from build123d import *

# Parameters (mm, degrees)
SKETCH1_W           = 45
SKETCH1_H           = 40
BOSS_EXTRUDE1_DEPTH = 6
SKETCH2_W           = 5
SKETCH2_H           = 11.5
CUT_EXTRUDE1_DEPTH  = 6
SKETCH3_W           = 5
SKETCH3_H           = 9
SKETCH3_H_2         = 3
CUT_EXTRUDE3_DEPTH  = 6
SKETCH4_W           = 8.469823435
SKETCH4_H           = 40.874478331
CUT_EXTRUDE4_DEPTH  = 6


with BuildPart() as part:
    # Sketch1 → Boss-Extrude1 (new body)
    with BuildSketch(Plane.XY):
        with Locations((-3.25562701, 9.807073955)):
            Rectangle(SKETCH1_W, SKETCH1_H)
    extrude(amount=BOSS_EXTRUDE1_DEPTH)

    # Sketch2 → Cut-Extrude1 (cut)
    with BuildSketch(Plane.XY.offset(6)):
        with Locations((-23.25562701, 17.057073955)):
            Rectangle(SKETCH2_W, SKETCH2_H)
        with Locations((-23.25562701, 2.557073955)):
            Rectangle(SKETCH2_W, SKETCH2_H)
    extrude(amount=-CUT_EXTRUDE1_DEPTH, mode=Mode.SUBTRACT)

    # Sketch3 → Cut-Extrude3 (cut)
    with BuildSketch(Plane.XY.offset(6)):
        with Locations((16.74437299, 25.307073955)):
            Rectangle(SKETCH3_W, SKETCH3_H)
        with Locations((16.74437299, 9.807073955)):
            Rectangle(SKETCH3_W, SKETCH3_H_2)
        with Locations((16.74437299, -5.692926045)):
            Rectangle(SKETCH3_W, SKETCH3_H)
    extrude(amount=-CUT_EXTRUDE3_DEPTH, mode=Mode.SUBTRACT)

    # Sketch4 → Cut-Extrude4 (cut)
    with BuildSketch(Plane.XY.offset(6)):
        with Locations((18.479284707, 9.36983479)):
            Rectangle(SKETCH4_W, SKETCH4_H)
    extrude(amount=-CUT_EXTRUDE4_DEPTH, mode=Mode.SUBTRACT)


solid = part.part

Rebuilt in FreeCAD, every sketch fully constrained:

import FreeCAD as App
import Part
import Sketcher


def add_polygon(sketch, points):
    """Adds a closed chain of lines whose ends are joined by coincident constraints."""
    first, n = sketch.GeometryCount, len(points)
    for a, b in zip(points, points[1:] + points[:1]):
        sketch.addGeometry(Part.LineSegment(App.Vector(*a, 0), App.Vector(*b, 0)), False)
    for i in range(n):
        sketch.addConstraint(Sketcher.Constraint("Coincident", first + i, 2, first + (i + 1) % n, 1))

doc = App.newDocument("Part")
body = doc.addObject("PartDesign::Body", "Body")

# Sketch on XY plane
sketch1 = body.newObject("Sketcher::SketchObject", "Sketch")
sketch1.AttachmentSupport = (doc.getObject("XY_Plane"), [""])
sketch1.MapMode = "FlatFace"
add_polygon(sketch1, [(-26, 30), (-26, -10), (19, -10), (19, 30)])  # lines 0-3
sketch1.addConstraint([
    Sketcher.Constraint("Vertical", 0),
    Sketcher.Constraint("Horizontal", 1),
    Sketcher.Constraint("Vertical", 2),
    Sketcher.Constraint("Horizontal", 3),
    Sketcher.Constraint("DistanceX", 1, 1, 1, 2, 45.0),
    Sketcher.Constraint("DistanceY", 0, 2, 0, 1, 40.0),
    Sketcher.Constraint("DistanceX", 0, 2, -1, 1, 25.755627),
    Sketcher.Constraint("DistanceY", 0, 2, -1, 1, 10.192926),
])
pad1 = body.newObject("PartDesign::Pad", "Pad")
pad1.Profile = sketch1
pad1.Length = 6

# Sketch on XY plane
sketch2 = body.newObject("Sketcher::SketchObject", "Sketch001")
sketch2.AttachmentSupport = (doc.getObject("XY_Plane"), [""])
sketch2.MapMode = "FlatFace"
sketch2.AttachmentOffset = App.Placement(App.Vector(0, 0, 6), App.Rotation())
add_polygon(sketch2, [(-26, 23), (-26, 11), (-21, 11), (-21, 23)])  # lines 0-3
add_polygon(sketch2, [(-26, 8), (-26, -3), (-21, -3), (-21, 8)])  # lines 4-7
sketch2.addConstraint([
    Sketcher.Constraint("Vertical", 0),
    Sketcher.Constraint("Horizontal", 1),
    Sketcher.Constraint("Vertical", 2),
    Sketcher.Constraint("Horizontal", 3),
    Sketcher.Constraint("Vertical", 4),
    Sketcher.Constraint("Horizontal", 5),
    Sketcher.Constraint("Vertical", 6),
    Sketcher.Constraint("Horizontal", 7),
    Sketcher.Constraint("Vertical", 3, 2, 4, 2),
    Sketcher.Constraint("Vertical", 2, 2, 5, 2),
    Sketcher.Constraint("Equal", 2, 4),
    Sketcher.Constraint("DistanceX", 1, 1, 1, 2, 5.0),
    Sketcher.Constraint("DistanceY", 0, 2, 0, 1, 11.5),
    Sketcher.Constraint("DistanceY", 4, 2, 3, 2, 26.0),
    Sketcher.Constraint("DistanceX", 0, 2, -1, 1, 25.755627),
    Sketcher.Constraint("DistanceY", -1, 1, 0, 2, 11.307074),
])
pocket1 = body.newObject("PartDesign::Pocket", "Pocket")
pocket1.Profile = sketch2
pocket1.Length = 6

# Sketch on XY plane
sketch3 = body.newObject("Sketcher::SketchObject", "Sketch002")
sketch3.AttachmentSupport = (doc.getObject("XY_Plane"), [""])
sketch3.MapMode = "FlatFace"
sketch3.AttachmentOffset = App.Placement(App.Vector(0, 0, 6), App.Rotation())
add_polygon(sketch3, [(14.2, 29.8), (14.2, 20.8), (19.2, 20.8), (19.2, 29.8)])  # lines 0-3
add_polygon(sketch3, [(14.2, 11.3), (14.2, 8.3), (19.2, 8.3), (19.2, 11.3)])  # lines 4-7
add_polygon(sketch3, [(14.2, -1.2), (14.2, -10.2), (19.2, -10.2), (19.2, -1.2)])  # lines 8-11
sketch3.addConstraint([
    Sketcher.Constraint("Vertical", 0),
    Sketcher.Constraint("Horizontal", 1),
    Sketcher.Constraint("Vertical", 2),
    Sketcher.Constraint("Horizontal", 3),
    Sketcher.Constraint("Vertical", 4),
    Sketcher.Constraint("Horizontal", 5),
    Sketcher.Constraint("Vertical", 6),
    Sketcher.Constraint("Horizontal", 7),
    Sketcher.Constraint("Vertical", 8),
    Sketcher.Constraint("Horizontal", 9),
    Sketcher.Constraint("Vertical", 10),
    Sketcher.Constraint("Horizontal", 11),
    Sketcher.Constraint("Vertical", 3, 2, 4, 2),
    Sketcher.Constraint("Vertical", 2, 2, 5, 2),
    Sketcher.Constraint("Vertical", 7, 2, 8, 2),
    Sketcher.Constraint("Vertical", 6, 2, 9, 2),
    Sketcher.Constraint("Equal", 2, 8),
    Sketcher.Constraint("DistanceX", 1, 1, 1, 2, 5.0),
    Sketcher.Constraint("DistanceY", 0, 2, 0, 1, 9.0),
    Sketcher.Constraint("DistanceY", 4, 2, 4, 1, 3.0),
    Sketcher.Constraint("DistanceY", 8, 2, 0, 2, 31.0),
    Sketcher.Constraint("DistanceY", 4, 2, 0, 2, 12.5),
    Sketcher.Constraint("DistanceX", -1, 1, 0, 2, 14.244373),
    Sketcher.Constraint("DistanceY", -1, 1, 0, 2, 20.807074),
])
pocket2 = body.newObject("PartDesign::Pocket", "Pocket001")
pocket2.Profile = sketch3
pocket2.Length = 6

# Sketch on XY plane
sketch4 = body.newObject("Sketcher::SketchObject", "Sketch003")
sketch4.AttachmentSupport = (doc.getObject("XY_Plane"), [""])
sketch4.MapMode = "FlatFace"
sketch4.AttachmentOffset = App.Placement(App.Vector(0, 0, 6), App.Rotation())
add_polygon(sketch4, [(14, 30), (14, -11), (23, -11), (23, 30)])  # lines 0-3
sketch4.addConstraint([
    Sketcher.Constraint("Vertical", 0),
    Sketcher.Constraint("Horizontal", 1),
    Sketcher.Constraint("Vertical", 2),
    Sketcher.Constraint("Horizontal", 3),
    Sketcher.Constraint("DistanceY", 0, 2, 0, 1, 40.874478),
    Sketcher.Constraint("DistanceX", 1, 1, 1, 2, 8.469823),
    Sketcher.Constraint("DistanceX", -1, 1, 0, 2, 14.244373),
    Sketcher.Constraint("DistanceY", 0, 2, -1, 1, 11.067404),
])
pocket3 = body.newObject("PartDesign::Pocket", "Pocket002")
pocket3.Profile = sketch4
pocket3.Length = 6

doc.recompute()
